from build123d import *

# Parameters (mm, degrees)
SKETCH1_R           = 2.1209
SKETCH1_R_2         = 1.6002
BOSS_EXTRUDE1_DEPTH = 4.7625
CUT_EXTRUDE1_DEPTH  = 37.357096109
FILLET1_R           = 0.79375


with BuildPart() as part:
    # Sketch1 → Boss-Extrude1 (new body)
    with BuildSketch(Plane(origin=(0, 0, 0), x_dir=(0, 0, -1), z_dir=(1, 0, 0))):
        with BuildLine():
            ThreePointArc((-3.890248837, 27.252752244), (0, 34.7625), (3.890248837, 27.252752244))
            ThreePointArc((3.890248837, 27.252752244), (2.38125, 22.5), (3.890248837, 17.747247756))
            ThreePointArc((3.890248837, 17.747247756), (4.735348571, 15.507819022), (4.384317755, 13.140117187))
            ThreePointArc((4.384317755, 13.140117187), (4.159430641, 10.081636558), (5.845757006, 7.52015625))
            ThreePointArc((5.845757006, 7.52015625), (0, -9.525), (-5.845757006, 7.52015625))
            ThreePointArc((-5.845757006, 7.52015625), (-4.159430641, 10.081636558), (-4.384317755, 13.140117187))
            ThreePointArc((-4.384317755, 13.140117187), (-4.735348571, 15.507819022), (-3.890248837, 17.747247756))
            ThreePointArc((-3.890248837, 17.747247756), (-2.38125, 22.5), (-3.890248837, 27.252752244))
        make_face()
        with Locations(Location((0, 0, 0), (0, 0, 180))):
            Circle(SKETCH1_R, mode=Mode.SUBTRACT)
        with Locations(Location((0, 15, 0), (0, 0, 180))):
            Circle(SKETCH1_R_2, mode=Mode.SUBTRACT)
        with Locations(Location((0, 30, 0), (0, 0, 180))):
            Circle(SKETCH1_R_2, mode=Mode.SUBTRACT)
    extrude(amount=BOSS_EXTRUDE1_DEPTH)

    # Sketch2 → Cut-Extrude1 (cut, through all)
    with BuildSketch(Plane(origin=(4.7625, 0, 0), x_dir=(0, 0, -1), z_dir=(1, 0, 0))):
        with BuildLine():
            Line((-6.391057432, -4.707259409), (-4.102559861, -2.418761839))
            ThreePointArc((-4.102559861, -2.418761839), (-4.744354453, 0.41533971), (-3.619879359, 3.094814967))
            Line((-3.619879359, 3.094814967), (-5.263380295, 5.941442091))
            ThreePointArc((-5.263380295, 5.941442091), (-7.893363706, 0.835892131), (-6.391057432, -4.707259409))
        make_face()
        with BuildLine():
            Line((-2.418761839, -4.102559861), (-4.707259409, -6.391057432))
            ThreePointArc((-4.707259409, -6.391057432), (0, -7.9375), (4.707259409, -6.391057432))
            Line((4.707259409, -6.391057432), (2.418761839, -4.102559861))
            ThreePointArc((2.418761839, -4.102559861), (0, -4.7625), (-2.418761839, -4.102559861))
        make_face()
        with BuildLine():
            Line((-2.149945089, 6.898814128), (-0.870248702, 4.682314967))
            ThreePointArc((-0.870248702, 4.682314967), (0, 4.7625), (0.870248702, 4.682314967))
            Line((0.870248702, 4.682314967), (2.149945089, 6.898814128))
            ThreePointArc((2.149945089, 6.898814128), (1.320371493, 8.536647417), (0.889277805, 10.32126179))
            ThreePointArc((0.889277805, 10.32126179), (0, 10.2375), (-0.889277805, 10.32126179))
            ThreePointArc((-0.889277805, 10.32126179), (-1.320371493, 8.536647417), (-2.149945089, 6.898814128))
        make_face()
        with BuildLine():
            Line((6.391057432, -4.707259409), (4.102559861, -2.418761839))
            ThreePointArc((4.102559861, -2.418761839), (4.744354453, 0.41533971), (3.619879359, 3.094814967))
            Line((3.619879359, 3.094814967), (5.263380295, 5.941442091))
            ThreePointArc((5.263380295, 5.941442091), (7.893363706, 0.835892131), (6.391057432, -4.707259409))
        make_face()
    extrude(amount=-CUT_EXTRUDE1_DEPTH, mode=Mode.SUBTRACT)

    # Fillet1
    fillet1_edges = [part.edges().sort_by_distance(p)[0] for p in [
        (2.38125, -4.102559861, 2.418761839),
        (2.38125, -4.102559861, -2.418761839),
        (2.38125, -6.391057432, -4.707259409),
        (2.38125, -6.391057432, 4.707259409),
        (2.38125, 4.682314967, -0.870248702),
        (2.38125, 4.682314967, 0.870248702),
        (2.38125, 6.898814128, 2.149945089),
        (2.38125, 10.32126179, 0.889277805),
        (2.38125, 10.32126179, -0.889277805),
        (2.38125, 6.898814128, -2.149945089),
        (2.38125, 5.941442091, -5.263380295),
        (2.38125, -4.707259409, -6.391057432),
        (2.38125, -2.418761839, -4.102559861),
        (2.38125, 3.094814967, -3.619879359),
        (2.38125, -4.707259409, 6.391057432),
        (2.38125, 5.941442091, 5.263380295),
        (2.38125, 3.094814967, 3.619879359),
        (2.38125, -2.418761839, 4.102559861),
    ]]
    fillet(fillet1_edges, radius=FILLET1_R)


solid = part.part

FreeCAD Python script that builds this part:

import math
import FreeCAD as App
import Part
import Sketcher

V = App.Vector
Q = App.Units.Quantity


def edges_at(feature, points):
    """Names of the edges that pass closest to the given points."""
    edges = feature.Shape.Edges
    near = lambda p: min(range(len(edges)), key=lambda i: edges[i].distToShape(Part.Vertex(*p))[0])
    return sorted({f"Edge{near(p) + 1}" for p in points})

doc = App.newDocument("Part")
body = doc.addObject("PartDesign::Body", "Body")

sketch1 = doc.addObject("Sketcher::SketchObject", "Sketch")
body.addObject(sketch1)
sketch1.AttachmentSupport = (doc.YZ_Plane, [""])
sketch1.MapMode = "FlatFace"
sketch1.addGeometry([
    Part.ArcOfCircle(Part.Circle(V(30, 0, 0), V(0, 0, 1), 4.8), math.radians(-125), math.radians(125)),
    Part.ArcOfCircle(Part.Circle(V(22.5, 10.6, 0), V(0, 0, 1), 8.2), math.radians(-125), math.radians(-55)),
    Part.ArcOfCircle(Part.Circle(V(15, 0, 0), V(0, 0, 1), 4.8), math.radians(55), math.radians(113)),
    Part.ArcOfCircle(Part.Circle(V(11.3, 8.8, 0), V(0, 0, 1), 4.8), math.radians(-142), math.radians(-67)),
    Part.ArcOfCircle(Part.Circle(V(0, 0, 0), V(0, 0, 1), 9.5), math.radians(38), math.radians(322)),
    Part.ArcOfCircle(Part.Circle(V(11.3, -8.8, 0), V(0, 0, 1), 4.8), math.radians(67), math.radians(142)),
    Part.ArcOfCircle(Part.Circle(V(15, 0, 0), V(0, 0, 1), 4.8), math.radians(-113), math.radians(-55)),
    Part.ArcOfCircle(Part.Circle(V(22.5, -10.6, 0), V(0, 0, 1), 8.2), math.radians(55), math.radians(125)),
    Part.Circle(V(0, 0, 0), V(0, 0, 1), 2.1),
    Part.Circle(V(15, 0, 0), V(0, 0, 1), 1.6),
    Part.Circle(V(30, 0, 0), V(0, 0, 1), 1.6),
], False)
sketch1.addConstraint([
    Sketcher.Constraint("Tangent", 0, 2, 1, 2),
    Sketcher.Constraint("Tangent", 1, 1, 2, 1),
    Sketcher.Constraint("Tangent", 2, 2, 3, 2),
    Sketcher.Constraint("Tangent", 3, 1, 4, 1),
    Sketcher.Constraint("Tangent", 4, 2, 5, 2),
    Sketcher.Constraint("Tangent", 5, 1, 6, 1),
    Sketcher.Constraint("Tangent", 6, 2, 7, 2),
    Sketcher.Constraint("Tangent", 7, 1, 0, 1),
    Sketcher.Constraint("Coincident", 4, 3, -1, 1),
    Sketcher.Constraint("Coincident", 8, 3, -1, 1),
    Sketcher.Constraint("Coincident", 6, 3, 2, 3),
    Sketcher.Constraint("Coincident", 9, 3, 2, 3),
    Sketcher.Constraint("Coincident", 10, 3, 0, 3),
    Sketcher.Constraint("Equal", 0, 2),
    Sketcher.Constraint("Equal", 2, 3),
    Sketcher.Constraint("Equal", 3, 5),
    Sketcher.Constraint("Equal", 5, 6),
    Sketcher.Constraint("Equal", 1, 7),
    Sketcher.Constraint("Equal", 9, 10),
    Sketcher.Constraint("Symmetric", 1, 3, 7, 3, -1),
    Sketcher.Constraint("Diameter", 8, Q("0.167 in")),
    Sketcher.Constraint("Diameter", 9, Q("0.126 in")),
    Sketcher.Constraint("Radius", 0, Q("0.1875 in")),
    Sketcher.Constraint("Radius", 4, Q("0.375 in")),
    Sketcher.Constraint("Radius", 1, 8.239149),
    Sketcher.Constraint("DistanceX", -1, 1, 0, 3, 30.0),
    Sketcher.Constraint("DistanceX", -1, 1, 1, 3, 22.5),
])
pad1 = doc.addObject("PartDesign::Pad", "Pad")
body.addObject(pad1)
pad1.Profile = sketch1
pad1.Length = Q("0.1875 in")

sketch2 = doc.addObject("Sketcher::SketchObject", "Sketch001")
body.addObject(sketch2)
sketch2.AttachmentSupport = (doc.YZ_Plane, [""])
sketch2.MapMode = "FlatFace"
sketch2.AttachmentOffset = App.Placement(V(0, 0, 0.1875 * 25.4), App.Rotation())
sketch2.addGeometry([
    Part.LineSegment(V(-4.7, 6.4, 0), V(-2.4, 4.1, 0)),
    Part.ArcOfCircle(Part.Circle(V(0, 0, 0), V(0, 0, 1), 4.8), math.radians(49), math.radians(121)),
    Part.LineSegment(V(3.1, 3.6, 0), V(5.9, 5.3, 0)),
    Part.ArcOfCircle(Part.Circle(V(0, 0, 0), V(0, 0, 1), 7.9), math.radians(42), math.radians(126)),
    Part.LineSegment(V(-4.1, 2.4, 0), V(-6.4, 4.7, 0)),
    Part.ArcOfCircle(Part.Circle(V(0, 0, 0), V(0, 0, 1), 7.9), math.radians(144), math.radians(216)),
    Part.LineSegment(V(-6.4, -4.7, 0), V(-4.1, -2.4, 0)),
    Part.ArcOfCircle(Part.Circle(V(0, 0, 0), V(0, 0, 1), 4.8), math.radians(149), math.radians(211)),
    Part.LineSegment(V(6.9, 2.1, 0), V(4.7, 0.9, 0)),
    Part.ArcOfCircle(Part.Circle(V(0, 0, 0), V(0, 0, 1), 4.8), math.radians(-11), math.radians(11)),
    Part.LineSegment(V(4.7, -0.9, 0), V(6.9, -2.1, 0)),
    Part.ArcOfCircle(Part.Circle(V(11.3, -8.8, 0), V(0, 0, 1), 7.9), math.radians(97), math.radians(124)),
    Part.ArcOfCircle(Part.Circle(V(15, 0, 0), V(0, 0, 1), 4.8), math.radians(169), math.radians(191)),
    Part.ArcOfCircle(Part.Circle(V(11.3, 8.8, 0), V(0, 0, 1), 7.9), math.radians(-124), math.radians(-97)),
    Part.LineSegment(V(-2.4, -4.1, 0), V(-4.7, -6.4, 0)),
    Part.ArcOfCircle(Part.Circle(V(0, 0, 0), V(0, 0, 1), 7.9), math.radians(-126), math.radians(-42)),
    Part.LineSegment(V(5.9, -5.3, 0), V(3.1, -3.6, 0)),
    Part.ArcOfCircle(Part.Circle(V(0, 0, 0), V(0, 0, 1), 4.8), math.radians(-121), math.radians(-49)),
], False)
sketch2.addConstraint([
    Sketcher.Constraint("Coincident", 0, 2, 1, 2),
    Sketcher.Constraint("Coincident", 1, 1, 2, 1),
    Sketcher.Constraint("Coincident", 2, 2, 3, 1),
    Sketcher.Constraint("Coincident", 3, 2, 0, 1),
    Sketcher.Constraint("Coincident", 4, 2, 5, 1),
    Sketcher.Constraint("Coincident", 5, 2, 6, 1),
    Sketcher.Constraint("Coincident", 6, 2, 7, 2),
    Sketcher.Constraint("Coincident", 7, 1, 4, 1),
    Sketcher.Constraint("Coincident", 8, 2, 9, 2),
    Sketcher.Constraint("Coincident", 9, 1, 10, 1),
    Sketcher.Constraint("Coincident", 10, 2, 11, 2),
    Sketcher.Constraint("Coincident", 11, 1, 12, 2),
    Sketcher.Constraint("Coincident", 12, 1, 13, 2),
    Sketcher.Constraint("Coincident", 13, 1, 8, 1),
    Sketcher.Constraint("Coincident", 14, 2, 15, 1),
    Sketcher.Constraint("Coincident", 15, 2, 16, 1),
    Sketcher.Constraint("Coincident", 16, 2, 17, 2),
    Sketcher.Constraint("Coincident", 17, 1, 14, 1),
    Sketcher.Constraint("Coincident", 1, 3, -1, 1),
    Sketcher.Constraint("Coincident", 3, 3, -1, 1),
    Sketcher.Constraint("Coincident", 5, 3, -1, 1),
    Sketcher.Constraint("Coincident", 7, 3, -1, 1),
    Sketcher.Constraint("Coincident", 9, 3, -1, 1),
    Sketcher.Constraint("Coincident", 15, 3, -1, 1),
    Sketcher.Constraint("Coincident", 17, 3, -1, 1),
    Sketcher.Constraint("Equal", 3, 5),
    Sketcher.Constraint("Equal", 1, 7),
    Sketcher.Constraint("Equal", 7, 9),
    Sketcher.Constraint("Equal", 5, 11),
    Sketcher.Constraint("Equal", 9, 12),
    Sketcher.Constraint("Equal", 11, 13),
    Sketcher.Constraint("Equal", 13, 15),
    Sketcher.Constraint("Equal", 12, 17),
    Sketcher.Constraint("Symmetric", 11, 3, 13, 3, -1),
    Sketcher.Constraint("PointOnObject", 12, 3, -1),
    Sketcher.Constraint("Parallel", 0, 4),
    Sketcher.Constraint("Perpendicular", 4, 6),
    Sketcher.Constraint("Parallel", 2, 8),
    Sketcher.Constraint("Parallel", 6, 14),
    Sketcher.Constraint("Parallel", 10, 16),
    Sketcher.Constraint("Vertical", 4, 2, 5, 2),
    Sketcher.Constraint("Vertical", 6, 2, 7, 1),
    Sketcher.Constraint("Vertical", 8, 2, 9, 1),
    Sketcher.Constraint("Vertical", 10, 2, 13, 1),
    Sketcher.Constraint("Vertical", 3, 2, 14, 2),
    Sketcher.Constraint("Vertical", 2, 2, 15, 2),
    Sketcher.Constraint("Equal", 0, 4),
    Sketcher.Constraint("Angle", 2, Q("30 deg")),
    Sketcher.Constraint("Radius", 1, Q("0.1875 in")),
    Sketcher.Constraint("Radius", 3, Q("0.3125 in")),
    Sketcher.Constraint("DistanceX", 1, 1, 8, 2, Q("0.0625 in")),
    Sketcher.Constraint("Distance", 2, 3.287002),
    Sketcher.Constraint("DistanceX", -1, 1, 12, 3, 15.0),
    Sketcher.Constraint("DistanceX", 4, 2, 3, 2, 1.683798),
    Sketcher.Constraint("DistanceX", 9, 1, 10, 2, 2.216499),
    Sketcher.Constraint("DistanceX", -1, 1, 11, 1, 10.321262),
])
pocket1 = doc.addObject("PartDesign::Pocket", "Pocket")
body.addObject(pocket1)
pocket1.Profile = sketch2
pocket1.Type = "ThroughAll"
doc.recompute()

fillet = doc.addObject("PartDesign::Fillet", "Fillet")
body.addObject(fillet)
fillet.Base = (pocket1, edges_at(pocket1, [
    (2.381, -4.103, 2.419),
    (2.381, -4.103, -2.419),
    (2.381, -6.391, -4.707),
    (2.381, -6.391, 4.707),
    (2.381, 4.682, -0.87),
    (2.381, 4.682, 0.87),
    (2.381, 6.899, 2.15),
    (2.381, 10.321, 0.889),
    (2.381, 10.321, -0.889),
    (2.381, 6.899, -2.15),
    (2.381, 5.941, -5.263),
    (2.381, -4.707, -6.391),
    (2.381, -2.419, -4.103),
    (2.381, 3.095, -3.62),
    (2.381, -4.707, 6.391),
    (2.381, 5.941, 5.263),
    (2.381, 3.095, 3.62),
    (2.381, -2.419, 4.103),
]))
fillet.Radius = Q("0.03125 in")

doc.recompute()
